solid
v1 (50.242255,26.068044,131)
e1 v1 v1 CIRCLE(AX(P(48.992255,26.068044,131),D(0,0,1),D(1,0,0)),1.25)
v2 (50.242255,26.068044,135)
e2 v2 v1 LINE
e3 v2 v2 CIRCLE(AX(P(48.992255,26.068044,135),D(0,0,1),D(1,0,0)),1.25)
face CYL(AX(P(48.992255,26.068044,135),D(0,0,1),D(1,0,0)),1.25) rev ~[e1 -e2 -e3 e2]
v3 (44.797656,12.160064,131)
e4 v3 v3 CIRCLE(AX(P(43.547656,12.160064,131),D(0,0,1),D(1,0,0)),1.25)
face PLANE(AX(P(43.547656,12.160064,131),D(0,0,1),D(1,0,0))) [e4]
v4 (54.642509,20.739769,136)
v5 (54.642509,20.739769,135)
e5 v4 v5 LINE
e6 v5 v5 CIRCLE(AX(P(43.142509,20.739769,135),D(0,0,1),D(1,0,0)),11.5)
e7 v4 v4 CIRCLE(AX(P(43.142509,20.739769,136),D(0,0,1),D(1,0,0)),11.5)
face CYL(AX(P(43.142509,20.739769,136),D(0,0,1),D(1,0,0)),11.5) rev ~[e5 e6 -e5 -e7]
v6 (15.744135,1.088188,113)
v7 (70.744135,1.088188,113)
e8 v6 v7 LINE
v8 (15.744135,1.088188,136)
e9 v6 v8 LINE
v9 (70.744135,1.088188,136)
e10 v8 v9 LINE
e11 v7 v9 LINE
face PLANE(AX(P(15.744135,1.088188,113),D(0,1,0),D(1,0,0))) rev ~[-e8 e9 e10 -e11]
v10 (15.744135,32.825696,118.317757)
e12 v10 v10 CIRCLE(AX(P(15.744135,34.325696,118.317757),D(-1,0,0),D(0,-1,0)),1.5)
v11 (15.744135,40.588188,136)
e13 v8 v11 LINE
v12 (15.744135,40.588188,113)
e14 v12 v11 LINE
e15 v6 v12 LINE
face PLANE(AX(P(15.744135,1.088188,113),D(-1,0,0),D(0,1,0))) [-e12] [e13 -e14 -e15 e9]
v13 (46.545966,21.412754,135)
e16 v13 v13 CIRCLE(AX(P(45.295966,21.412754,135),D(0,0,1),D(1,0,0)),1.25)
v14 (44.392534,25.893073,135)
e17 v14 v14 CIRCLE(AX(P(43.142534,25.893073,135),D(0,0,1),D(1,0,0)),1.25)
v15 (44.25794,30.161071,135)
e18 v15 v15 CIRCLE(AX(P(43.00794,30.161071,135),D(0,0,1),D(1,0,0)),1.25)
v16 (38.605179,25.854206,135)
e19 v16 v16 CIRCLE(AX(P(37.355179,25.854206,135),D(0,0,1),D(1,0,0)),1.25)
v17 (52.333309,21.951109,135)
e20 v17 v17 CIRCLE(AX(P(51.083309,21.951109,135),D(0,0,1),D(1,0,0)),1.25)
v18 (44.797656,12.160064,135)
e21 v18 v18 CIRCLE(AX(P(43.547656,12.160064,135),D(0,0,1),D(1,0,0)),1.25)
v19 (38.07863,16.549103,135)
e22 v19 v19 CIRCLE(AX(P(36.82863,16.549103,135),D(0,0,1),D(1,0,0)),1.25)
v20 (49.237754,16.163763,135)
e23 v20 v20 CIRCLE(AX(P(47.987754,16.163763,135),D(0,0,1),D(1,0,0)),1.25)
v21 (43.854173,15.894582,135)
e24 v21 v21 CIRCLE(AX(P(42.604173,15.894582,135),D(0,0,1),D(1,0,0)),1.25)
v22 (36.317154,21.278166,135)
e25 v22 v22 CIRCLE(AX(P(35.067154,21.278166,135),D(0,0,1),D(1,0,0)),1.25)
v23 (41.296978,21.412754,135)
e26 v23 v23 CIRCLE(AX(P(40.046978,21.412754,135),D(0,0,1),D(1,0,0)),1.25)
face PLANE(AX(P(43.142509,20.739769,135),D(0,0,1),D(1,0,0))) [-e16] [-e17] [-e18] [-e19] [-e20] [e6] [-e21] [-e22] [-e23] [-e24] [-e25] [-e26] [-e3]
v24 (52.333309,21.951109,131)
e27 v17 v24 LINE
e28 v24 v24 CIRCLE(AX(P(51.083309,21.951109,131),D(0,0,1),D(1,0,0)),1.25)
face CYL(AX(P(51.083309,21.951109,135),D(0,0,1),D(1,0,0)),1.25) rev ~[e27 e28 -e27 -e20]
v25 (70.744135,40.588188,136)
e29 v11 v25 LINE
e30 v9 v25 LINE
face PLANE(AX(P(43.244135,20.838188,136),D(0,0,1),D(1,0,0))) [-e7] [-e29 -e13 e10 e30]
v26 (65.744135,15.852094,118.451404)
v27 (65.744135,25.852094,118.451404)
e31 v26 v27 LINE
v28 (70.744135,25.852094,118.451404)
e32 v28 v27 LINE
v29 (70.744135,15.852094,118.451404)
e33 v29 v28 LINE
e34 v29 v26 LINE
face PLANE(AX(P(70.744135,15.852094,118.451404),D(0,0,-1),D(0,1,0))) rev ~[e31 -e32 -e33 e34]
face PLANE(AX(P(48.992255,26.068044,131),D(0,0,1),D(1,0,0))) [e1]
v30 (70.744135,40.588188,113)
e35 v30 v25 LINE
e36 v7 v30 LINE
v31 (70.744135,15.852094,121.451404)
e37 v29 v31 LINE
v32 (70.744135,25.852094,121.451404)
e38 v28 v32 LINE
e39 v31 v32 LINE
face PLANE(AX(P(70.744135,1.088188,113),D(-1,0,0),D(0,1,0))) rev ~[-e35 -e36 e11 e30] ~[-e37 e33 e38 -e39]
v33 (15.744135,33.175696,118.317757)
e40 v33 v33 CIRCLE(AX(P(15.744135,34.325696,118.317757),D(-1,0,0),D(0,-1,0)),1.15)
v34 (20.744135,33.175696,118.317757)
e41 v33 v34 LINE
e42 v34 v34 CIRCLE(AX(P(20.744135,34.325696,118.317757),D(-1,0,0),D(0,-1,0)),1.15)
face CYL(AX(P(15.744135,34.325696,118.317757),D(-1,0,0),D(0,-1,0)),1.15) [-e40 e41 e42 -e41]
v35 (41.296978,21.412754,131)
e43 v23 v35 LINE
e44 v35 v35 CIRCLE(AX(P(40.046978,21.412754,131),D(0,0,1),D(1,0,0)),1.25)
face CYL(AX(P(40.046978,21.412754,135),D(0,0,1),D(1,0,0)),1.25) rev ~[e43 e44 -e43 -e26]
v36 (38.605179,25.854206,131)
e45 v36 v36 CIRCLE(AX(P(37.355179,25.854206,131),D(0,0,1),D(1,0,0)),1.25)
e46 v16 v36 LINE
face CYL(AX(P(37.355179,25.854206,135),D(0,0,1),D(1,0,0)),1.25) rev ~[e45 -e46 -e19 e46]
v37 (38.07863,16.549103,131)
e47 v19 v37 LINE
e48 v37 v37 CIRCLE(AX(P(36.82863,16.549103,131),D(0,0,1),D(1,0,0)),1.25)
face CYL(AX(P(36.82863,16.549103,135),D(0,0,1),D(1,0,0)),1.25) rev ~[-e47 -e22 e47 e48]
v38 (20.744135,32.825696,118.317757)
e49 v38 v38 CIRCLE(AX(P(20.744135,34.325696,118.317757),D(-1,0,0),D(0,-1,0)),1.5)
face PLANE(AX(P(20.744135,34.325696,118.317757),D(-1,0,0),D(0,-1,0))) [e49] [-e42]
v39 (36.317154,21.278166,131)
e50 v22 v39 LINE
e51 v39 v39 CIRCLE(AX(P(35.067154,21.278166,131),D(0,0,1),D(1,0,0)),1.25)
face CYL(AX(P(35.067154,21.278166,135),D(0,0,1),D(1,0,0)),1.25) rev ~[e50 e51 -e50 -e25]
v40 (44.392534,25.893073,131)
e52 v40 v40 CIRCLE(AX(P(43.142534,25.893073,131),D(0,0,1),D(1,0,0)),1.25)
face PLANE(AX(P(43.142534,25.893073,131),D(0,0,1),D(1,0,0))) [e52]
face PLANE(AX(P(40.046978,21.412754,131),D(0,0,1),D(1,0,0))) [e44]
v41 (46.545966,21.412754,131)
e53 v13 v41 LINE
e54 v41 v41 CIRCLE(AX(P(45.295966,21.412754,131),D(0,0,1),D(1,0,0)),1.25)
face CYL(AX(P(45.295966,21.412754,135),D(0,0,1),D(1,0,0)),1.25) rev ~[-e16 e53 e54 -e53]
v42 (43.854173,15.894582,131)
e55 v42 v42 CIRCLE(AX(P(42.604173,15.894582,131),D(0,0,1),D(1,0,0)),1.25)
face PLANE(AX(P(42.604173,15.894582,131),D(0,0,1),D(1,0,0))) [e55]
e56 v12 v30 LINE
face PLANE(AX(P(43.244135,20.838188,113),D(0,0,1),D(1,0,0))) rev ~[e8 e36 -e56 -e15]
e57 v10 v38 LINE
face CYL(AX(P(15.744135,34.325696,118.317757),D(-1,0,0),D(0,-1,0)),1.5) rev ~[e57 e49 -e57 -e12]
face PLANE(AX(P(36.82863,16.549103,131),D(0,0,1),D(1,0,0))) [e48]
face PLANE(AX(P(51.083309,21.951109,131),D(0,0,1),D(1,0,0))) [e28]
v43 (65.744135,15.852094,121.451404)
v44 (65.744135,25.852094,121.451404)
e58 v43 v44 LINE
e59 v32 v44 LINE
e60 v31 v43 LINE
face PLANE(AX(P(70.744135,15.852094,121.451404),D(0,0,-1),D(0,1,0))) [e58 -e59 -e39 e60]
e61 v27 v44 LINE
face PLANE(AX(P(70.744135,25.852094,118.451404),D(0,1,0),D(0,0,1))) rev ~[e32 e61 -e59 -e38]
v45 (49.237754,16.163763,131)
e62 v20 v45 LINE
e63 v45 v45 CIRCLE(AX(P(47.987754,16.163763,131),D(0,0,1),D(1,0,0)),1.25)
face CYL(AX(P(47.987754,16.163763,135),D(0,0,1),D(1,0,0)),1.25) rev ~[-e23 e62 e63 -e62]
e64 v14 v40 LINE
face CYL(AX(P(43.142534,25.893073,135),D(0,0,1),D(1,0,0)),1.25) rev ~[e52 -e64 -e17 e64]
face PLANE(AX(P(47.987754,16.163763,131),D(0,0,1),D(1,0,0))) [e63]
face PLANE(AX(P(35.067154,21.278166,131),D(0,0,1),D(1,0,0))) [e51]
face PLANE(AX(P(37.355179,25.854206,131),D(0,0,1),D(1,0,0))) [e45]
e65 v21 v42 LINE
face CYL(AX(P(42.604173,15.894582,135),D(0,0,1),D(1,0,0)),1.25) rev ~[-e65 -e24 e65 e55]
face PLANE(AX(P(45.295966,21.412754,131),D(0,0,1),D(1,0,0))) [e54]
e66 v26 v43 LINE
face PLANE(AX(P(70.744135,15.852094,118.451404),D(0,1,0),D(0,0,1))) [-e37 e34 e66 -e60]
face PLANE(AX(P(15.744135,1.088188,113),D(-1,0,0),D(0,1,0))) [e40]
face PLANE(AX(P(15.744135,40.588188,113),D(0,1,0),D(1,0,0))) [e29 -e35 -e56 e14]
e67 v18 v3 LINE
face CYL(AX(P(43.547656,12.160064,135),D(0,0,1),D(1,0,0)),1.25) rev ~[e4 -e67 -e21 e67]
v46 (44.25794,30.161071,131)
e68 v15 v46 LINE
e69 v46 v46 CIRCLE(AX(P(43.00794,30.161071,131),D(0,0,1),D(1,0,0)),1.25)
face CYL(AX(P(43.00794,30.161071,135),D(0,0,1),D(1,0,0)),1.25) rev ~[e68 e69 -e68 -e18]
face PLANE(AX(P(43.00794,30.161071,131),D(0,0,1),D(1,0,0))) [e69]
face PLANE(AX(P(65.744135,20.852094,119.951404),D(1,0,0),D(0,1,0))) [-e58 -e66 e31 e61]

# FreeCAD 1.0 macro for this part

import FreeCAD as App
import Part
import Sketcher
Q = App.Units.Quantity


def add_polygon(sketch, points):
    """Adds a closed chain of lines whose ends are joined by coincident constraints."""
    first, n = sketch.GeometryCount, len(points)
    for a, b in zip(points, points[1:] + points[:1]):
        sketch.addGeometry(Part.LineSegment(App.Vector(*a, 0), App.Vector(*b, 0)), False)
    for i in range(n):
        sketch.addConstraint(Sketcher.Constraint("Coincident", first + i, 2, first + (i + 1) % n, 1))

doc = App.newDocument("Part")
params = doc.addObject("Spreadsheet::Sheet", "Params")
for row, (alias, value) in enumerate([
    ("sketch1_width", "55 mm"),
    ("sketch1_height", "39.5 mm"),
    ("pad1_length", "23 mm"),
    ("sketch2_width", "10 mm"),
    ("sketch2_height", "3 mm"),
    ("pocket1_length", "5 mm"),
    ("sketch3_diameter", "23 mm"),
    ("pocket2_length", "1 mm"),
    ("sketch4_diameter", "2.5 mm"),
    ("pocket3_length", "4 mm"),
    ("sketch5_diameter", "3 mm"),
    ("sketch5_diameter2", "2.3 mm"),
    ("pocket4_length", "5 mm"),
], start=1):
    params.set(f"A{row}", alias)
    params.set(f"B{row}", "=" + value)
    params.setAlias(f"B{row}", alias)

body = doc.addObject("PartDesign::Body", "Body")

# Sketch on XY plane
sketch1 = doc.addObject("Sketcher::SketchObject", "Sketch")
body.addObject(sketch1)
sketch1.AttachmentSupport = (doc.XY_Plane, [""])
sketch1.MapMode = "FlatFace"
add_polygon(sketch1, [(-19.255865, 20.588188), (-19.255865, -18.911812), (35.744135, -18.911812), (35.744135, 20.588188)])  # lines 0-3
sketch1.addConstraint([
    Sketcher.Constraint("Vertical", 0),
    Sketcher.Constraint("Horizontal", 1),
    Sketcher.Constraint("Vertical", 2),
    Sketcher.Constraint("Horizontal", 3),
    Sketcher.Constraint("DistanceX", 1, 1, 1, 2, Q("55 mm")),
    Sketcher.Constraint("DistanceY", 0, 2, 0, 1, Q("39.5 mm")),
    Sketcher.Constraint("DistanceX", 0, 2, -1, 1, Q("19.255865 mm")),
    Sketcher.Constraint("DistanceY", 0, 2, -1, 1, Q("18.911812 mm")),
])
sketch1.setExpression("Constraints[8]", "Params.sketch1_width")
sketch1.setExpression("Constraints[9]", "Params.sketch1_height")
pad1 = doc.addObject("PartDesign::Pad", "Pad")
body.addObject(pad1)
pad1.Profile = sketch1
pad1.setExpression("Length", "Params.pad1_length")

# Sketch on YZ plane
sketch2 = doc.addObject("Sketcher::SketchObject", "Sketch001")
body.addObject(sketch2)
sketch2.AttachmentSupport = (doc.YZ_Plane, [""])
sketch2.MapMode = "FlatFace"
sketch2.AttachmentOffset = App.Placement(App.Vector(0, 0, 35.744135), App.Rotation())
add_polygon(sketch2, [(-4.147906, 8.451404), (-4.147906, 5.451404), (5.852094, 5.451404), (5.852094, 8.451404)])  # lines 0-3
sketch2.addConstraint([
    Sketcher.Constraint("Vertical", 0),
    Sketcher.Constraint("Horizontal", 1),
    Sketcher.Constraint("Vertical", 2),
    Sketcher.Constraint("Horizontal", 3),
    Sketcher.Constraint("DistanceX", 1, 1, 1, 2, Q("10 mm")),
    Sketcher.Constraint("DistanceY", 0, 2, 0, 1, Q("3 mm")),
    Sketcher.Constraint("DistanceX", 0, 2, -1, 1, Q("4.147906 mm")),
    Sketcher.Constraint("DistanceY", -1, 1, 0, 2, Q("5.451404 mm")),
])
sketch2.setExpression("Constraints[8]", "Params.sketch2_width")
sketch2.setExpression("Constraints[9]", "Params.sketch2_height")
pocket1 = doc.addObject("PartDesign::Pocket", "Pocket")
body.addObject(pocket1)
pocket1.Profile = sketch2
pocket1.setExpression("Length", "Params.pocket1_length")

# Sketch on XY plane
sketch3 = doc.addObject("Sketcher::SketchObject", "Sketch002")
body.addObject(sketch3)
sketch3.AttachmentSupport = (doc.XY_Plane, [""])
sketch3.MapMode = "FlatFace"
sketch3.AttachmentOffset = App.Placement(App.Vector(0, 0, 23), App.Rotation())
sketch3.addGeometry(Part.Circle(App.Vector(8.142509, 0.739769, 0), App.Vector(0, 0, 1), 11.5), False)
sketch3.addConstraint([
    Sketcher.Constraint("Diameter", 0, Q("23 mm")),
    Sketcher.Constraint("DistanceX", -1, 1, 0, 3, Q("8.142509 mm")),
    Sketcher.Constraint("DistanceY", -1, 1, 0, 3, Q("0.739769 mm")),
])
sketch3.setExpression("Constraints[0]", "Params.sketch3_diameter")
pocket2 = doc.addObject("PartDesign::Pocket", "Pocket001")
body.addObject(pocket2)
pocket2.Profile = sketch3
pocket2.setExpression("Length", "Params.pocket2_length")

# Sketch on XY plane
sketch4 = doc.addObject("Sketcher::SketchObject", "Sketch003")
body.addObject(sketch4)
sketch4.AttachmentSupport = (doc.XY_Plane, [""])
sketch4.MapMode = "FlatFace"
sketch4.AttachmentOffset = App.Placement(App.Vector(0, 0, 22), App.Rotation())
sketch4.addGeometry([
    Part.Circle(App.Vector(2.355179, 5.854206, 0), App.Vector(0, 0, 1), 1.25),  # 0
    Part.Circle(App.Vector(8.142534, 5.893073, 0), App.Vector(0, 0, 1), 1.25),  # 1
    Part.Circle(App.Vector(13.992255, 6.068044, 0), App.Vector(0, 0, 1), 1.25),  # 2
    Part.Circle(App.Vector(0.067154, 1.278166, 0), App.Vector(0, 0, 1), 1.25),  # 3
    Part.Circle(App.Vector(5.046978, 1.412754, 0), App.Vector(0, 0, 1), 1.25),  # 4
    Part.Circle(App.Vector(10.295966, 1.412754, 0), App.Vector(0, 0, 1), 1.25),  # 5
    Part.Circle(App.Vector(1.82863, -3.450897, 0), App.Vector(0, 0, 1), 1.25),  # 6
    Part.Circle(App.Vector(7.604173, -4.105418, 0), App.Vector(0, 0, 1), 1.25),  # 7
    Part.Circle(App.Vector(12.987754, -3.836237, 0), App.Vector(0, 0, 1), 1.25),  # 8
    Part.Circle(App.Vector(8.547656, -7.839936, 0), App.Vector(0, 0, 1), 1.25),  # 9
    Part.Circle(App.Vector(8.00794, 10.161071, 0), App.Vector(0, 0, 1), 1.25),  # 10
    Part.Circle(App.Vector(16.083309, 1.951109, 0), App.Vector(0, 0, 1), 1.25),  # 11
], False)
sketch4.addConstraint([
    Sketcher.Constraint("Equal", 0, 1),
    Sketcher.Constraint("Equal", 1, 2),
    Sketcher.Constraint("Equal", 2, 3),
    Sketcher.Constraint("Equal", 3, 4),
    Sketcher.Constraint("Equal", 4, 5),
    Sketcher.Constraint("Equal", 5, 6),
    Sketcher.Constraint("Equal", 6, 7),
    Sketcher.Constraint("Equal", 7, 8),
    Sketcher.Constraint("Equal", 8, 9),
    Sketcher.Constraint("Equal", 9, 10),
    Sketcher.Constraint("Equal", 10, 11),
    Sketcher.Constraint("Horizontal", 4, 3, 5, 3),
    Sketcher.Constraint("Diameter", 0, Q("2.5 mm")),
    Sketcher.Constraint("DistanceX", 3, 3, 2, 3, Q("13.925101 mm")),
    Sketcher.Constraint("DistanceX", 0, 3, 4, 3, Q("2.691799 mm")),
    Sketcher.Constraint("DistanceX", 8, 3, 2, 3, Q("1.004501 mm")),
    Sketcher.Constraint("DistanceX", 9, 3, 8, 3, Q("4.440098 mm")),
    Sketcher.Constraint("DistanceY", 9, 3, 8, 3, Q("4.003699 mm")),
    Sketcher.Constraint("DistanceX", -1, 1, 0, 3, Q("2.355179 mm")),
    Sketcher.Constraint("DistanceX", -1, 1, 6, 3, Q("1.82863 mm")),
    Sketcher.Constraint("DistanceY", 7, 3, -1, 1, Q("4.105418 mm")),
    Sketcher.Constraint("DistanceX", -1, 1, 10, 3, Q("8.00794 mm")),
    Sketcher.Constraint("DistanceY", -1, 1, 10, 3, Q("10.161071 mm")),
    Sketcher.Constraint("DistanceX", -1, 1, 11, 3, Q("16.083309 mm")),
    Sketcher.Constraint("DistanceY", -1, 1, 11, 3, Q("1.951109 mm")),
    Sketcher.Constraint("DistanceX", 1, 3, 2, 3, Q("5.849721 mm")),
    Sketcher.Constraint("DistanceY", 1, 3, 2, 3, Q("0.174971 mm")),
    Sketcher.Constraint("DistanceY", 0, 3, 2, 3, Q("0.213838 mm")),
    Sketcher.Constraint("DistanceY", 3, 3, 0, 3, Q("4.57604 mm")),
    Sketcher.Constraint("DistanceY", 3, 3, 4, 3, Q("0.134588 mm")),
    Sketcher.Constraint("DistanceX", 5, 3, 2, 3, Q("3.696289 mm")),
    Sketcher.Constraint("DistanceY", 6, 3, 4, 3, Q("4.863651 mm")),
    Sketcher.Constraint("DistanceY", 7, 3, 6, 3, Q("0.654521 mm")),
    Sketcher.Constraint("DistanceX", 3, 3, 7, 3, Q("7.537019 mm")),
    Sketcher.Constraint("DistanceY", 7, 3, 8, 3, Q("0.269181 mm")),
    Sketcher.Constraint("DistanceX", -1, 1, 1, 3, Q("8.142534 mm")),
])
sketch4.setExpression("Constraints[12]", "Params.sketch4_diameter")
pocket3 = doc.addObject("PartDesign::Pocket", "Pocket002")
body.addObject(pocket3)
pocket3.Profile = sketch4
pocket3.setExpression("Length", "Params.pocket3_length")

# Sketch on YZ plane
sketch5 = doc.addObject("Sketcher::SketchObject", "Sketch004")
body.addObject(sketch5)
sketch5.AttachmentSupport = (doc.YZ_Plane, [""])
sketch5.MapMode = "FlatFace"
sketch5.AttachmentOffset = App.Placement(App.Vector(0, 0, -19.255865), App.Rotation())
sketch5.addGeometry([
    Part.Circle(App.Vector(14.325696, 5.317757, 0), App.Vector(0, 0, 1), 1.5),
    Part.Circle(App.Vector(14.325696, 5.317757, 0), App.Vector(0, 0, 1), 1.15),
], False)
sketch5.addConstraint([
    Sketcher.Constraint("Coincident", 1, 3, 0, 3),
    Sketcher.Constraint("Diameter", 0, Q("3 mm")),
    Sketcher.Constraint("Diameter", 1, Q("2.3 mm")),
    Sketcher.Constraint("DistanceX", -1, 1, 0, 3, Q("14.325696 mm")),
    Sketcher.Constraint("DistanceY", -1, 1, 0, 3, Q("5.317757 mm")),
])
sketch5.setExpression("Constraints[1]", "Params.sketch5_diameter")
sketch5.setExpression("Constraints[2]", "Params.sketch5_diameter2")
pocket4 = doc.addObject("PartDesign::Pocket", "Pocket003")
body.addObject(pocket4)
pocket4.Profile = sketch5
pocket4.setExpression("Length", "Params.pocket4_length")
pocket4.Reversed = True
body2 = doc.addObject("PartDesign::Body", "Body001")
doc.recompute()

body.Placement = App.Placement(App.Vector(35, 20, 113), App.Rotation(App.Vector(0, 0, 1), 0))
boolean = doc.addObject("PartDesign::Boolean", "Boolean")
body2.addObject(boolean)
boolean.Type = "Fuse"
boolean.addObjects([body])

doc.recompute()
